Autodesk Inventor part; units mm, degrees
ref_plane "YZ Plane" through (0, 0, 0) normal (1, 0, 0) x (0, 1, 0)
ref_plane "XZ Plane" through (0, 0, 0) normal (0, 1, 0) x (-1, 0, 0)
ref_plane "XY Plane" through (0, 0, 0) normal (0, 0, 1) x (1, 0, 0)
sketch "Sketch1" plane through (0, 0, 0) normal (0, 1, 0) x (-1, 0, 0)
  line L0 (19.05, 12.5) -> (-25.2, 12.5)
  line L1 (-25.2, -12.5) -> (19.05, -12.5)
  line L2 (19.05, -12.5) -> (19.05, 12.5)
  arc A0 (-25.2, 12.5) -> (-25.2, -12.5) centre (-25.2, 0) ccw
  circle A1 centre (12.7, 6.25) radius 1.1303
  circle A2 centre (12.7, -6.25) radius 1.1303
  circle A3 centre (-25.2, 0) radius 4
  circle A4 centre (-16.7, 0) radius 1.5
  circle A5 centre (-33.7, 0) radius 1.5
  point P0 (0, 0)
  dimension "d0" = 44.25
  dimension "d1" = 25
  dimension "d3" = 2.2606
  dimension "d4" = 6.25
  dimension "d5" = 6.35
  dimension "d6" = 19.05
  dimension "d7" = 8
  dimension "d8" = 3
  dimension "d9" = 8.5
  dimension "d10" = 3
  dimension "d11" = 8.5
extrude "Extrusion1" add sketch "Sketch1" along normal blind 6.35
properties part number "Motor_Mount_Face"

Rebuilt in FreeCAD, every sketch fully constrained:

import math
import FreeCAD as App
import Part
import Sketcher

V = App.Vector

doc = App.newDocument("Part")
body = doc.addObject("PartDesign::Body", "Body")

# Sketch on XZ plane
sketch1 = body.newObject("Sketcher::SketchObject", "Sketch")
sketch1.AttachmentSupport = (doc.getObject("XZ_Plane"), [""])
sketch1.MapMode = "FlatFace"
sketch1.addGeometry([
    Part.LineSegment(V(-19.1, -12.5, 0), V(-19.1, 12.5, 0)),  # 0
    Part.LineSegment(V(-19.1, 12.5, 0), V(25.2, 12.5, 0)),  # 1
    Part.ArcOfCircle(Part.Circle(V(25.2, 0, 0), V(0, 0, 1), 12.5), math.radians(-90), math.radians(90)),  # 2
    Part.LineSegment(V(25.2, -12.5, 0), V(-19.1, -12.5, 0)),  # 3
    Part.Circle(V(-12.7, -6.2, 0), V(0, 0, 1), 1.1),  # 4
    Part.Circle(V(33.7, 0, 0), V(0, 0, 1), 1.5),  # 5
    Part.Circle(V(25.2, 0, 0), V(0, 0, 1), 4),  # 6
    Part.Circle(V(16.7, 0, 0), V(0, 0, 1), 1.5),  # 7
    Part.Circle(V(-12.7, 6.2, 0), V(0, 0, 1), 1.1),  # 8
], False)
sketch1.addConstraint([
    Sketcher.Constraint("Coincident", 0, 2, 1, 1),
    Sketcher.Constraint("Tangent", 1, 2, 2, 2),
    Sketcher.Constraint("Tangent", 2, 1, 3, 1),
    Sketcher.Constraint("Coincident", 3, 2, 0, 1),
    Sketcher.Constraint("Vertical", 0),
    Sketcher.Constraint("Horizontal", 1),
    Sketcher.Constraint("Horizontal", 3),
    Sketcher.Constraint("Coincident", 6, 3, 2, 3),
    Sketcher.Constraint("Equal", 5, 7),
    Sketcher.Constraint("Equal", 4, 8),
    Sketcher.Constraint("Symmetric", 4, 3, 8, 3, -1),
    Sketcher.Constraint("PointOnObject", 2, 3, -1),
    Sketcher.Constraint("PointOnObject", 5, 3, -1),
    Sketcher.Constraint("PointOnObject", 7, 3, -1),
    Sketcher.Constraint("Diameter", 5, 3.0),
    Sketcher.Constraint("Diameter", 6, 8.0),
    Sketcher.Constraint("Radius", 2, 12.5),
    Sketcher.Constraint("Diameter", 4, 2.2606),
    Sketcher.Constraint("DistanceX", 1, 1, 1, 2, 44.25),
    Sketcher.Constraint("DistanceX", 2, 3, 5, 3, 8.5),
    Sketcher.Constraint("DistanceX", 7, 3, 2, 3, 8.5),
    Sketcher.Constraint("DistanceY", 4, 3, -1, 1, 6.25),
    Sketcher.Constraint("DistanceX", 0, 2, -1, 1, 19.05),
    Sketcher.Constraint("DistanceX", 0, 2, 8, 3, 6.35),
])
pad1 = body.newObject("PartDesign::Pad", "Pad")
pad1.Profile = sketch1
pad1.Length = 6.35
pad1.Reversed = True

doc.recompute()
